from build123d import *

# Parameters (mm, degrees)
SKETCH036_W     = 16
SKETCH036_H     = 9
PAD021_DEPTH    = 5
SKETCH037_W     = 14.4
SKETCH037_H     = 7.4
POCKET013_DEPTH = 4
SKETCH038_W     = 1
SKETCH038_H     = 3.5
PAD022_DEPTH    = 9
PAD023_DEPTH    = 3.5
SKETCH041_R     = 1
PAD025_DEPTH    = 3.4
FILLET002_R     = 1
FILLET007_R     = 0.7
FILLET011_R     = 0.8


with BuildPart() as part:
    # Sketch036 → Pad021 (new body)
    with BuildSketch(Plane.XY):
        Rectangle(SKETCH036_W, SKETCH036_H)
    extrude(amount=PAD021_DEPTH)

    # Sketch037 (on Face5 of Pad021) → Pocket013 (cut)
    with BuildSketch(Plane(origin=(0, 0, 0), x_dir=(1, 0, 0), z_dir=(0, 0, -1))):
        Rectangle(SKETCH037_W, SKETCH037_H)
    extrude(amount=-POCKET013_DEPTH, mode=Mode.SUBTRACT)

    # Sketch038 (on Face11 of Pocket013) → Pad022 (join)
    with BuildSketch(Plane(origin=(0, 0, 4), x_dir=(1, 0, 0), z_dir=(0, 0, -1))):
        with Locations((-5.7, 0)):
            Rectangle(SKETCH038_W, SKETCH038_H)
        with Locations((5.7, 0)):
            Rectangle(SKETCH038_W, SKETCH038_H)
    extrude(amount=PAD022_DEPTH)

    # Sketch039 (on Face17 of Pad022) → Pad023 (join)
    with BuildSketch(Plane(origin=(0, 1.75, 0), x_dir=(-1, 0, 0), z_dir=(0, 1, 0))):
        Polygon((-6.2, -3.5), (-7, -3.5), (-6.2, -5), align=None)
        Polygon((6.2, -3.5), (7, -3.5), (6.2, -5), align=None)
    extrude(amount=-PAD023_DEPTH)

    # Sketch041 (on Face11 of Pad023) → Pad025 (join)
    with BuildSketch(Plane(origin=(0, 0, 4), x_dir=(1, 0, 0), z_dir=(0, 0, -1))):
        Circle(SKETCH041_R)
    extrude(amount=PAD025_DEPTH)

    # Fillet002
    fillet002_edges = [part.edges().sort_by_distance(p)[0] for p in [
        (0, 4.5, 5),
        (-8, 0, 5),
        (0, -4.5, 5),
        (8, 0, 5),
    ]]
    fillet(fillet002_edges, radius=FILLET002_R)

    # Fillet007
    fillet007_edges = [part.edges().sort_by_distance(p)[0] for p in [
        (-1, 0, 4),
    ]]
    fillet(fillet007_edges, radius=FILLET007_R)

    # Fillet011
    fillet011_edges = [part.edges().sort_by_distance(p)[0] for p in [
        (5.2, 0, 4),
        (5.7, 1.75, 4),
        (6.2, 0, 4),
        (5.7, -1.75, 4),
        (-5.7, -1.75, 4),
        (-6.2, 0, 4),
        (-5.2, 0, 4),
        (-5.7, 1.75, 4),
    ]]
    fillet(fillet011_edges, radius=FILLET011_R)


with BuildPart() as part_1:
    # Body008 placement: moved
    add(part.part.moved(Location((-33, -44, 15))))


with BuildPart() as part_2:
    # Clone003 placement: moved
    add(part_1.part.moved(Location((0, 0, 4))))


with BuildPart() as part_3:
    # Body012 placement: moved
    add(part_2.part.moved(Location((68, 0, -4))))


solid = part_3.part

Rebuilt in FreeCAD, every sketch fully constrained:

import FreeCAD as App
import Part
import Sketcher
from FreeCAD import Vector
Q = App.Units.Quantity


def edges_at(feature, points):
    """Names of the edges that pass closest to the given points."""
    edges = feature.Shape.Edges
    near = lambda p: min(range(len(edges)), key=lambda i: edges[i].distToShape(Part.Vertex(*p))[0])
    return sorted({f"Edge{near(p) + 1}" for p in points})

doc = App.newDocument("Part")
params = doc.addObject("Spreadsheet::Sheet", "Params")
for row, (alias, value) in enumerate([
    ("sketch1_width", "16 mm"),
    ("sketch1_height", "9 mm"),
    ("pad1_length", "5 mm"),
    ("sketch2_width", "14.4 mm"),
    ("sketch2_height", "7.4 mm"),
    ("pocket1_length", "4 mm"),
    ("sketch3_width", "1 mm"),
    ("sketch3_height", "3.5 mm"),
    ("pad2_length", "9 mm"),
    ("sketch4_width", "0.8 mm"),
    ("sketch4_height", "1.5 mm"),
    ("pad3_length", "3.5 mm"),
    ("sketch5_diameter", "2 mm"),
    ("pad4_length", "3.4 mm"),
    ("fillet_radius", "1 mm"),
    ("fillet2_radius", "0.7 mm"),
    ("fillet3_radius", "0.8 mm"),
], start=1):
    params.set(f"A{row}", alias)
    params.set(f"B{row}", "=" + value)
    params.setAlias(f"B{row}", alias)

body = doc.addObject("PartDesign::Body", "Body")

# Sketch on XY plane
sketch1 = doc.addObject("Sketcher::SketchObject", "Sketch")
body.addObject(sketch1)
sketch1.AttachmentSupport = (doc.XY_Plane, [""])
sketch1.MapMode = "FlatFace"
sketch1.addGeometry([
    Part.LineSegment(Vector(-8, 4, 0), Vector(-8, -4, 0)),
    Part.LineSegment(Vector(-8, -4, 0), Vector(8, -4, 0)),
    Part.LineSegment(Vector(8, -4, 0), Vector(8, 4, 0)),
    Part.LineSegment(Vector(8, 4, 0), Vector(-8, 4, 0)),
], False)
sketch1.addConstraint([
    Sketcher.Constraint("Coincident", 0, 2, 1, 1),
    Sketcher.Constraint("Coincident", 1, 2, 2, 1),
    Sketcher.Constraint("Coincident", 2, 2, 3, 1),
    Sketcher.Constraint("Coincident", 3, 2, 0, 1),
    Sketcher.Constraint("Vertical", 0),
    Sketcher.Constraint("Horizontal", 1),
    Sketcher.Constraint("Vertical", 2),
    Sketcher.Constraint("Horizontal", 3),
    Sketcher.Constraint("Symmetric", 0, 2, 2, 2, -1, 1),
    Sketcher.Constraint("DistanceX", 1, 1, 1, 2, Q("16 mm")),
    Sketcher.Constraint("DistanceY", 0, 2, 0, 1, Q("9 mm")),
])
sketch1.setExpression("Constraints[9]", "Params.sketch1_width")
sketch1.setExpression("Constraints[10]", "Params.sketch1_height")
pad1 = doc.addObject("PartDesign::Pad", "Pad")
body.addObject(pad1)
pad1.Profile = sketch1
pad1.setExpression("Length", "Params.pad1_length")

# Sketch on XY plane
sketch2 = doc.addObject("Sketcher::SketchObject", "Sketch001")
body.addObject(sketch2)
sketch2.AttachmentSupport = (doc.XY_Plane, [""])
sketch2.MapMode = "FlatFace"
sketch2.addGeometry([
    Part.LineSegment(Vector(-7, -4, 0), Vector(-7, 4, 0)),
    Part.LineSegment(Vector(-7, 4, 0), Vector(7, 4, 0)),
    Part.LineSegment(Vector(7, 4, 0), Vector(7, -4, 0)),
    Part.LineSegment(Vector(7, -4, 0), Vector(-7, -4, 0)),
], False)
sketch2.addConstraint([
    Sketcher.Constraint("Coincident", 0, 2, 1, 1),
    Sketcher.Constraint("Coincident", 1, 2, 2, 1),
    Sketcher.Constraint("Coincident", 2, 2, 3, 1),
    Sketcher.Constraint("Coincident", 3, 2, 0, 1),
    Sketcher.Constraint("Vertical", 0),
    Sketcher.Constraint("Horizontal", 1),
    Sketcher.Constraint("Vertical", 2),
    Sketcher.Constraint("Horizontal", 3),
    Sketcher.Constraint("Symmetric", 0, 2, 2, 2, -1, 1),
    Sketcher.Constraint("DistanceX", 1, 1, 1, 2, Q("14.4 mm")),
    Sketcher.Constraint("DistanceY", 0, 1, 0, 2, Q("7.4 mm")),
])
sketch2.setExpression("Constraints[9]", "Params.sketch2_width")
sketch2.setExpression("Constraints[10]", "Params.sketch2_height")
pocket1 = doc.addObject("PartDesign::Pocket", "Pocket")
body.addObject(pocket1)
pocket1.Profile = sketch2
pocket1.setExpression("Length", "Params.pocket1_length")
pocket1.Reversed = True

# Sketch on XY plane
sketch3 = doc.addObject("Sketcher::SketchObject", "Sketch002")
body.addObject(sketch3)
sketch3.AttachmentSupport = (doc.XY_Plane, [""])
sketch3.MapMode = "FlatFace"
sketch3.AttachmentOffset = App.Placement(Vector(0, 0, 4), App.Rotation())
sketch3.addGeometry([
    Part.LineSegment(Vector(-6.2, -1.8, 0), Vector(-6.2, 1.8, 0)),  # 0
    Part.LineSegment(Vector(-6.2, 1.8, 0), Vector(-5.2, 1.8, 0)),  # 1
    Part.LineSegment(Vector(-5.2, 1.8, 0), Vector(-5.2, -1.8, 0)),  # 2
    Part.LineSegment(Vector(-5.2, -1.8, 0), Vector(-6.2, -1.8, 0)),  # 3
    Part.LineSegment(Vector(5.2, -1.8, 0), Vector(5.2, 1.8, 0)),  # 4
    Part.LineSegment(Vector(5.2, 1.8, 0), Vector(6.2, 1.8, 0)),  # 5
    Part.LineSegment(Vector(6.2, 1.8, 0), Vector(6.2, -1.8, 0)),  # 6
    Part.LineSegment(Vector(6.2, -1.8, 0), Vector(5.2, -1.8, 0)),  # 7
], False)
sketch3.addConstraint([
    Sketcher.Constraint("Coincident", 0, 2, 1, 1),
    Sketcher.Constraint("Coincident", 1, 2, 2, 1),
    Sketcher.Constraint("Coincident", 2, 2, 3, 1),
    Sketcher.Constraint("Coincident", 3, 2, 0, 1),
    Sketcher.Constraint("Coincident", 4, 2, 5, 1),
    Sketcher.Constraint("Coincident", 5, 2, 6, 1),
    Sketcher.Constraint("Coincident", 6, 2, 7, 1),
    Sketcher.Constraint("Coincident", 7, 2, 4, 1),
    Sketcher.Constraint("Vertical", 0),
    Sketcher.Constraint("Horizontal", 1),
    Sketcher.Constraint("Vertical", 2),
    Sketcher.Constraint("Horizontal", 3),
    Sketcher.Constraint("Vertical", 4),
    Sketcher.Constraint("Horizontal", 5),
    Sketcher.Constraint("Vertical", 6),
    Sketcher.Constraint("Horizontal", 7),
    Sketcher.Constraint("Symmetric", 2, 2, 4, 2, -1, 1),
    Sketcher.Constraint("Symmetric", 0, 2, 6, 2, -1, 1),
    Sketcher.Constraint("Horizontal", 1, 2, 4, 2),
    Sketcher.Constraint("DistanceX", 1, 1, 1, 2, Q("1 mm")),
    Sketcher.Constraint("DistanceY", 0, 1, 0, 2, Q("3.5 mm")),
    Sketcher.Constraint("DistanceX", 0, 2, -1, 1, Q("6.2 mm")),
])
sketch3.setExpression("Constraints[19]", "Params.sketch3_width")
sketch3.setExpression("Constraints[20]", "Params.sketch3_height")
pad2 = doc.addObject("PartDesign::Pad", "Pad001")
body.addObject(pad2)
pad2.Profile = sketch3
pad2.setExpression("Length", "Params.pad2_length")
pad2.Reversed = True

# Sketch on XZ plane
sketch4 = doc.addObject("Sketcher::SketchObject", "Sketch003")
body.addObject(sketch4)
sketch4.AttachmentSupport = (doc.XZ_Plane, [""])
sketch4.MapMode = "FlatFace"
sketch4.AttachmentOffset = App.Placement(Vector(0, 0, -1.75), App.Rotation())
sketch4.addGeometry([
    Part.LineSegment(Vector(6.2, -3.5, 0), Vector(7, -3.5, 0)),  # 0
    Part.LineSegment(Vector(7, -3.5, 0), Vector(6.2, -5, 0)),  # 1
    Part.LineSegment(Vector(6.2, -5, 0), Vector(6.2, -3.5, 0)),  # 2
    Part.LineSegment(Vector(-7, -3.5, 0), Vector(-6.2, -3.5, 0)),  # 3
    Part.LineSegment(Vector(-6.2, -3.5, 0), Vector(-6.2, -5, 0)),  # 4
    Part.LineSegment(Vector(-6.2, -5, 0), Vector(-7, -3.5, 0)),  # 5
], False)
sketch4.addConstraint([
    Sketcher.Constraint("Coincident", 0, 2, 1, 1),
    Sketcher.Constraint("Coincident", 1, 2, 2, 1),
    Sketcher.Constraint("Coincident", 2, 2, 0, 1),
    Sketcher.Constraint("Coincident", 3, 2, 4, 1),
    Sketcher.Constraint("Coincident", 4, 2, 5, 1),
    Sketcher.Constraint("Coincident", 5, 2, 3, 1),
    Sketcher.Constraint("Horizontal", 0),
    Sketcher.Constraint("Vertical", 2),
    Sketcher.Constraint("Horizontal", 3),
    Sketcher.Constraint("Vertical", 4),
    Sketcher.Constraint("Symmetric", 2, 2, 3, 2, -2),
    Sketcher.Constraint("Horizontal", 1, 2, 4, 2),
    Sketcher.Constraint("Equal", 0, 3),
    Sketcher.Constraint("DistanceX", 0, 1, 0, 2, Q("0.8 mm")),
    Sketcher.Constraint("DistanceY", 2, 1, 2, 2, Q("1.5 mm")),
    Sketcher.Constraint("DistanceX", -1, 1, 0, 2, Q("7 mm")),
    Sketcher.Constraint("DistanceY", 1, 2, -1, 1, Q("5 mm")),
])
sketch4.setExpression("Constraints[13]", "Params.sketch4_width")
sketch4.setExpression("Constraints[14]", "Params.sketch4_height")
pad3 = doc.addObject("PartDesign::Pad", "Pad002")
body.addObject(pad3)
pad3.Profile = sketch4
pad3.setExpression("Length", "Params.pad3_length")

# Sketch on XY plane
sketch5 = doc.addObject("Sketcher::SketchObject", "Sketch004")
body.addObject(sketch5)
sketch5.AttachmentSupport = (doc.XY_Plane, [""])
sketch5.MapMode = "FlatFace"
sketch5.AttachmentOffset = App.Placement(Vector(0, 0, 4), App.Rotation())
sketch5.addGeometry(Part.Circle(Vector(0, 0, 0), Vector(0, 0, 1), 1), False)
sketch5.addConstraint([
    Sketcher.Constraint("Coincident", 0, 3, -1, 1),
    Sketcher.Constraint("Diameter", 0, Q("2 mm")),
])
sketch5.setExpression("Constraints[1]", "Params.sketch5_diameter")
pad4 = doc.addObject("PartDesign::Pad", "Pad003")
body.addObject(pad4)
pad4.Profile = sketch5
pad4.setExpression("Length", "Params.pad4_length")
pad4.Reversed = True
doc.recompute()

fillet = doc.addObject("PartDesign::Fillet", "Fillet")
body.addObject(fillet)
fillet.Base = (pad4, edges_at(pad4, [
    (0, 4.5, 5),
    (-8, 0, 5),
    (0, -4.5, 5),
    (8, 0, 5),
]))
fillet.setExpression("Radius", "Params.fillet_radius")
doc.recompute()

fillet2 = doc.addObject("PartDesign::Fillet", "Fillet001")
body.addObject(fillet2)
fillet2.Base = (fillet, edges_at(fillet, [(-1, 0, 4)]))
fillet2.setExpression("Radius", "Params.fillet2_radius")
doc.recompute()

fillet3 = doc.addObject("PartDesign::Fillet", "Fillet002")
body.addObject(fillet3)
fillet3.Base = (fillet2, edges_at(fillet2, [
    (5.2, 0, 4),
    (5.7, 1.75, 4),
    (6.2, 0, 4),
    (5.7, -1.75, 4),
    (-5.7, -1.75, 4),
    (-6.2, 0, 4),
    (-5.2, 0, 4),
    (-5.7, 1.75, 4),
]))
fillet3.setExpression("Radius", "Params.fillet3_radius")
body2 = doc.addObject("PartDesign::Body", "Body001")
doc.recompute()

body.Placement = App.Placement(Vector(-33, -44, 15), App.Rotation(Vector(0, 0, 1), 0))
boolean = doc.addObject("PartDesign::Boolean", "Boolean")
body2.addObject(boolean)
boolean.Type = "Fuse"
boolean.addObjects([body])
body3 = doc.addObject("PartDesign::Body", "Body002")
doc.recompute()

body2.Placement = App.Placement(Vector(0, 0, 4), App.Rotation(Vector(0, 0, 1), 0))
boolean2 = doc.addObject("PartDesign::Boolean", "Boolean001")
body3.addObject(boolean2)
boolean2.Type = "Fuse"
boolean2.addObjects([body2])
body4 = doc.addObject("PartDesign::Body", "Body003")
doc.recompute()

body3.Placement = App.Placement(Vector(68, 0, -4), App.Rotation(Vector(0, 0, 1), 0))
boolean3 = doc.addObject("PartDesign::Boolean", "Boolean002")
body4.addObject(boolean3)
boolean3.Type = "Fuse"
boolean3.addObjects([body3])

doc.recompute()
